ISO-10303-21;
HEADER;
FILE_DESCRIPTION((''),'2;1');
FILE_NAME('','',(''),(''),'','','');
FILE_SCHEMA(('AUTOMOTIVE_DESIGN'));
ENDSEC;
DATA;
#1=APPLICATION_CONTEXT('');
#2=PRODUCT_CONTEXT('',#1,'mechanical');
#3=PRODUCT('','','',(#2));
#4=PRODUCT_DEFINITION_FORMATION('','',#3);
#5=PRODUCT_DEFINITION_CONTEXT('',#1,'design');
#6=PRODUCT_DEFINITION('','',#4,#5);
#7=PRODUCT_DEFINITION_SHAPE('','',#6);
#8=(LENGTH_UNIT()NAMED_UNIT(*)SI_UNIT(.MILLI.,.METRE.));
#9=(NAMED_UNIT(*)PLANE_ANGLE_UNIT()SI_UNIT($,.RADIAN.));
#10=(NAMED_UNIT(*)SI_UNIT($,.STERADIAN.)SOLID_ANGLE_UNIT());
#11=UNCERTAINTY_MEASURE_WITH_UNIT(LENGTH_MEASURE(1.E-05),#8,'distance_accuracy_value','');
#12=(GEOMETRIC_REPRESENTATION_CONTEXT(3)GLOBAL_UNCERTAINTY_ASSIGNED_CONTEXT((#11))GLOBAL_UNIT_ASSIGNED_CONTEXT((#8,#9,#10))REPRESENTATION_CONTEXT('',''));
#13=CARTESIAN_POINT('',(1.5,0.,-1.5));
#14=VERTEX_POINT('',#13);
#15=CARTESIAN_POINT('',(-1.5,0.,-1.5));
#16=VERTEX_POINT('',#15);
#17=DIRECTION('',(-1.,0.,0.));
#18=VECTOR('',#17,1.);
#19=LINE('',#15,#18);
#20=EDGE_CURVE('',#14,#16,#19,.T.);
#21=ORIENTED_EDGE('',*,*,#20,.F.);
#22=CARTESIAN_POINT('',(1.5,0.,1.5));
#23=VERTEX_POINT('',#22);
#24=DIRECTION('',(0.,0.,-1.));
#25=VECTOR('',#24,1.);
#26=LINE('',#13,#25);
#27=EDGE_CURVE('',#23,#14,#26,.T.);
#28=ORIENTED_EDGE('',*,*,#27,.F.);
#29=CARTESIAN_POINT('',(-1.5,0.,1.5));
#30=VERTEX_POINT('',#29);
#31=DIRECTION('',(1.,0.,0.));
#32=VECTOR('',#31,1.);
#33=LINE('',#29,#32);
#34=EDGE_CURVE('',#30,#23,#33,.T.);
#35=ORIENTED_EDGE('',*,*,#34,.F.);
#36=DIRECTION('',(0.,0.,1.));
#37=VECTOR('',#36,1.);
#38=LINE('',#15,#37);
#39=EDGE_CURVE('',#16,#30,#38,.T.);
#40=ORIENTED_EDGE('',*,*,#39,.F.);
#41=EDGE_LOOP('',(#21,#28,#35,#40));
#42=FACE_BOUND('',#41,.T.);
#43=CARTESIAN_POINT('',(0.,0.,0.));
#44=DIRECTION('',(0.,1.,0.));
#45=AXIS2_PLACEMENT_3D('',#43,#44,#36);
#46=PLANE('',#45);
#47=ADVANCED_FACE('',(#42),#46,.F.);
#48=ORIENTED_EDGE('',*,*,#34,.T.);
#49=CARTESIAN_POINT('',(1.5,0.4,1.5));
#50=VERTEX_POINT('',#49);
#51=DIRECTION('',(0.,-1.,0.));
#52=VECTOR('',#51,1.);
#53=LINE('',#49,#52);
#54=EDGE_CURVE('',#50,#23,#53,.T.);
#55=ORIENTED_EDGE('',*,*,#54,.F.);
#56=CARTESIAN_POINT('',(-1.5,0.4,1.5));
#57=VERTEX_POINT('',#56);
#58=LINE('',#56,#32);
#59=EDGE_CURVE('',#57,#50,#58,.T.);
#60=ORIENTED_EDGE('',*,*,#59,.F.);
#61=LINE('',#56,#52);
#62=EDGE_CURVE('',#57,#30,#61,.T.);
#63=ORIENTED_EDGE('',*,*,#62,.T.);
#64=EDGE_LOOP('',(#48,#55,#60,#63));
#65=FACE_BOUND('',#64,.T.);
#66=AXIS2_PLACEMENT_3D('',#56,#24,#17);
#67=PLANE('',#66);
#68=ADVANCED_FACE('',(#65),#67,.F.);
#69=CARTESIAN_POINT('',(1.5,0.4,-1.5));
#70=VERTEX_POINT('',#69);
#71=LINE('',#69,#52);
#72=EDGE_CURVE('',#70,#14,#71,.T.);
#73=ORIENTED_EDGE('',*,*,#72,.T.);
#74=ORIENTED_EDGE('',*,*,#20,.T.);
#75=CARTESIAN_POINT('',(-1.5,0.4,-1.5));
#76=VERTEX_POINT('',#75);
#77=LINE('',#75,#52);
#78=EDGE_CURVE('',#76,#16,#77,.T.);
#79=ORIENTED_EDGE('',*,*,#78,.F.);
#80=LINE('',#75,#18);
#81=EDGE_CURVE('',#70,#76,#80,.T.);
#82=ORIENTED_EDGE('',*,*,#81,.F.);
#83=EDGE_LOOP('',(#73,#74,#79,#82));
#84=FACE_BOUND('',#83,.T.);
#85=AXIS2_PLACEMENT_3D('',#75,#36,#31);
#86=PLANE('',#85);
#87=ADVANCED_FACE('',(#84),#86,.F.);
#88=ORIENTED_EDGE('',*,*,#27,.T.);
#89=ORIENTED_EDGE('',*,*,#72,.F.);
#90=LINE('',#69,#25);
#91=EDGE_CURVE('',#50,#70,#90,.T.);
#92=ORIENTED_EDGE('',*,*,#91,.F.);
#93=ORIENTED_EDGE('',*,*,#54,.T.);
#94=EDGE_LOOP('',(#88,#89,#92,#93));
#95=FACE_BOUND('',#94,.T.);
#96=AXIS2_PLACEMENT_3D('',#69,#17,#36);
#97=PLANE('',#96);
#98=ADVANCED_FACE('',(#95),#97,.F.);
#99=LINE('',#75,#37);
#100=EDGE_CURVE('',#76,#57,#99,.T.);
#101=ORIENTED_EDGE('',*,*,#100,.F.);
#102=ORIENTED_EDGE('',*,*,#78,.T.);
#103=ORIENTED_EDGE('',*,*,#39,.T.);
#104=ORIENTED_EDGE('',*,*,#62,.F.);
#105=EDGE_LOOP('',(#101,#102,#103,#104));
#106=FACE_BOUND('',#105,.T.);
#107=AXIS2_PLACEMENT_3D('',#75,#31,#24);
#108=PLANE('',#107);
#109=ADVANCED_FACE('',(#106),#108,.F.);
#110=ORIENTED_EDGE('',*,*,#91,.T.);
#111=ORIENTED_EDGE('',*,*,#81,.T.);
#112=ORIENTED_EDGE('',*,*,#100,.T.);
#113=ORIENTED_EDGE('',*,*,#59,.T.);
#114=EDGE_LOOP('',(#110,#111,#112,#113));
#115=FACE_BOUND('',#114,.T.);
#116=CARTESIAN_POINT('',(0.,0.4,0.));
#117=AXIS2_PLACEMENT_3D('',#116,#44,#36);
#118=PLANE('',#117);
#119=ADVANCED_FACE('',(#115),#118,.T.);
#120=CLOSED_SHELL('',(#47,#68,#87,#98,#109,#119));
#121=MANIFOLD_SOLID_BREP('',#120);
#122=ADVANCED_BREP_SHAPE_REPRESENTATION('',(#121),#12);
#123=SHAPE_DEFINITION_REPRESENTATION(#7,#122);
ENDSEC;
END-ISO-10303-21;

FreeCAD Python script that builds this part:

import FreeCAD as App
import Part
import Sketcher
from FreeCAD import Vector
Q = App.Units.Quantity

doc = App.newDocument("Part")
body = doc.addObject("PartDesign::Body", "Body")

# Sketch on XZ plane
sketch1 = doc.addObject("Sketcher::SketchObject", "Sketch")
body.addObject(sketch1)
sketch1.AttachmentSupport = (doc.XZ_Plane, [""])
sketch1.MapMode = "FlatFace"
sketch1.addGeometry([
    Part.LineSegment(Vector(-1.5, -1.5, 0), Vector(-1.5, 1.5, 0)),
    Part.LineSegment(Vector(-1.5, 1.5, 0), Vector(1.5, 1.5, 0)),
    Part.LineSegment(Vector(1.5, 1.5, 0), Vector(1.5, -1.5, 0)),
    Part.LineSegment(Vector(1.5, -1.5, 0), Vector(-1.5, -1.5, 0)),
], False)
sketch1.addConstraint([
    Sketcher.Constraint("Coincident", 0, 2, 1, 1),
    Sketcher.Constraint("Coincident", 1, 2, 2, 1),
    Sketcher.Constraint("Coincident", 2, 2, 3, 1),
    Sketcher.Constraint("Coincident", 3, 2, 0, 1),
    Sketcher.Constraint("Vertical", 0),
    Sketcher.Constraint("Horizontal", 1),
    Sketcher.Constraint("Vertical", 2),
    Sketcher.Constraint("Horizontal", 3),
    Sketcher.Constraint("Symmetric", 0, 2, 2, 2, -1, 1),
    Sketcher.Constraint("Equal", 3, 0),
    Sketcher.Constraint("DistanceX", 1, 1, 1, 2, Q("3 mm")),
])
pad1 = doc.addObject("PartDesign::Pad", "Pad")
body.addObject(pad1)
pad1.Profile = sketch1
pad1.Length = 0.4
pad1.Reversed = True

doc.recompute()
